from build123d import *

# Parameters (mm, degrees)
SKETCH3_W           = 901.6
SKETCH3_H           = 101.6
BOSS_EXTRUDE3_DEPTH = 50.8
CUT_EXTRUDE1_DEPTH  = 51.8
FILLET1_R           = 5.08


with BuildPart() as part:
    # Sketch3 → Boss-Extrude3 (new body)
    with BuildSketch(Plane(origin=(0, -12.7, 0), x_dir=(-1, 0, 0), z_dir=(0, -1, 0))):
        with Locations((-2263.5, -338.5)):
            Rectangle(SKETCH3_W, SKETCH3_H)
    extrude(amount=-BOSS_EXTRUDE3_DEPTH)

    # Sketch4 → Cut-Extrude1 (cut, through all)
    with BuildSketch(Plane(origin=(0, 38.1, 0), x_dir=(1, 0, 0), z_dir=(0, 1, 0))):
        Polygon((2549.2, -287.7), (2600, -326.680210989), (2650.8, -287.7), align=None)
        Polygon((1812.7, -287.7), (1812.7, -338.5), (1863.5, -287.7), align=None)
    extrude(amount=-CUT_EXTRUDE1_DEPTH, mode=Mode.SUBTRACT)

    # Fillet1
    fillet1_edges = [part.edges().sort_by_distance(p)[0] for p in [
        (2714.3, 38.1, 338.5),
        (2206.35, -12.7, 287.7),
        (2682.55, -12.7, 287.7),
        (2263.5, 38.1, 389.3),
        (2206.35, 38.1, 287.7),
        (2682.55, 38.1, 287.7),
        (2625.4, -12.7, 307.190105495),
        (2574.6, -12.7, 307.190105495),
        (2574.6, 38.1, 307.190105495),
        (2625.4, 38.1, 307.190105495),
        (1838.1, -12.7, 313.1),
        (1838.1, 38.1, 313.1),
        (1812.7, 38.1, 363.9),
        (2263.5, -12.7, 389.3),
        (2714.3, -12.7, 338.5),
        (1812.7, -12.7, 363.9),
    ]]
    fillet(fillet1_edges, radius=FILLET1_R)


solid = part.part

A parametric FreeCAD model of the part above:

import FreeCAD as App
import Part
import Sketcher

V = App.Vector
Q = App.Units.Quantity


def edges_at(feature, points):
    """Names of the edges that pass closest to the given points."""
    edges = feature.Shape.Edges
    near = lambda p: min(range(len(edges)), key=lambda i: edges[i].distToShape(Part.Vertex(*p))[0])
    return sorted({f"Edge{near(p) + 1}" for p in points})


def add_polygon(sketch, points):
    """Adds a closed chain of lines whose ends are joined by coincident constraints."""
    first, n = sketch.GeometryCount, len(points)
    for a, b in zip(points, points[1:] + points[:1]):
        sketch.addGeometry(Part.LineSegment(App.Vector(*a, 0), App.Vector(*b, 0)), False)
    for i in range(n):
        sketch.addConstraint(Sketcher.Constraint("Coincident", first + i, 2, first + (i + 1) % n, 1))

doc = App.newDocument("Part")
body = doc.addObject("PartDesign::Body", "Body")

# Sketch on XZ plane
sketch1 = doc.addObject("Sketcher::SketchObject", "Sketch")
body.addObject(sketch1)
sketch1.AttachmentSupport = (doc.XZ_Plane, [""])
sketch1.MapMode = "FlatFace"
sketch1.AttachmentOffset = App.Placement(V(0, 0, 0.5 * 25.4), App.Rotation())
add_polygon(sketch1, [(2714, 288), (2714, 389), (1813, 389), (1813, 288)])  # lines 0-3
sketch1.addConstraint([
    Sketcher.Constraint("Vertical", 0),
    Sketcher.Constraint("Horizontal", 1),
    Sketcher.Constraint("Vertical", 2),
    Sketcher.Constraint("Horizontal", 3),
    Sketcher.Constraint("DistanceY", 0, 1, 0, 2, Q("4 in")),
    Sketcher.Constraint("DistanceX", 1, 2, 1, 1, 901.6),
    Sketcher.Constraint("DistanceX", -1, 1, 0, 2, 2714.3),
    Sketcher.Constraint("DistanceY", -1, 1, 0, 2, 389.3),
])
pad1 = doc.addObject("PartDesign::Pad", "Pad")
body.addObject(pad1)
pad1.Profile = sketch1
pad1.Length = Q("2 in")
pad1.Reversed = True

# Sketch on XZ plane
sketch2 = doc.addObject("Sketcher::SketchObject", "Sketch001")
body.addObject(sketch2)
sketch2.AttachmentSupport = (doc.XZ_Plane, [""])
sketch2.MapMode = "FlatFace"
sketch2.AttachmentOffset = App.Placement(V(0, 0, -1.5 * 25.4), App.Rotation())
add_polygon(sketch2, [(2549, 288), (2600, 327), (2651, 288)])  # lines 0-2
add_polygon(sketch2, [(1813, 288), (1813, 338), (1864, 288)])  # lines 3-5
sketch2.addConstraint([
    Sketcher.Constraint("Horizontal", 2),
    Sketcher.Constraint("Vertical", 3),
    Sketcher.Constraint("Horizontal", 5),
    Sketcher.Constraint("Horizontal", 2, 2, 4, 2),
    Sketcher.Constraint("Equal", 5, 3),
    Sketcher.Constraint("Equal", 0, 1),
    Sketcher.Constraint("DistanceX", 2, 2, 2, 1, Q("4 in")),
    Sketcher.Constraint("DistanceX", 5, 2, 5, 1, Q("2 in")),
    Sketcher.Constraint("Angle", 0, Q("37.5 deg")),
    Sketcher.Constraint("DistanceX", -1, 1, 0, 2, 2600.0),
    Sketcher.Constraint("DistanceY", -1, 1, 1, 2, 287.7),
    Sketcher.Constraint("DistanceX", -1, 1, 3, 2, 1812.7),
])
pocket1 = doc.addObject("PartDesign::Pocket", "Pocket")
body.addObject(pocket1)
pocket1.Profile = sketch2
pocket1.Type = "ThroughAll"
pocket1.Reversed = True
doc.recompute()

fillet = doc.addObject("PartDesign::Fillet", "Fillet")
body.addObject(fillet)
fillet.Base = (pocket1, edges_at(pocket1, [
    (2714.3, 38.1, 338.5),
    (2206.35, -12.7, 287.7),
    (2682.55, -12.7, 287.7),
    (2263.5, 38.1, 389.3),
    (2206.35, 38.1, 287.7),
    (2682.55, 38.1, 287.7),
    (2625.4, -12.7, 307.19),
    (2574.6, -12.7, 307.19),
    (2574.6, 38.1, 307.19),
    (2625.4, 38.1, 307.19),
    (1838.1, -12.7, 313.1),
    (1838.1, 38.1, 313.1),
    (1812.7, 38.1, 363.9),
    (2263.5, -12.7, 389.3),
    (2714.3, -12.7, 338.5),
    (1812.7, -12.7, 363.9),
]))
fillet.Radius = Q("0.2 in")

doc.recompute()
